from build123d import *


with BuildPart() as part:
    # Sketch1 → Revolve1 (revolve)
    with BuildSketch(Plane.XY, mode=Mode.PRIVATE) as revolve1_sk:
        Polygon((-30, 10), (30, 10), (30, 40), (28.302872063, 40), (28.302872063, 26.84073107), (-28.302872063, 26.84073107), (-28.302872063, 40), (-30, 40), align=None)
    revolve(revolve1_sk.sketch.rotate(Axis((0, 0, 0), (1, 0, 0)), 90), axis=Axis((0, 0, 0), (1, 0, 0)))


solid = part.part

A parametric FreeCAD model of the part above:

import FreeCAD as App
import Part
import Sketcher
Q = App.Units.Quantity


def add_polygon(sketch, points):
    """Adds a closed chain of lines whose ends are joined by coincident constraints."""
    first, n = sketch.GeometryCount, len(points)
    for a, b in zip(points, points[1:] + points[:1]):
        sketch.addGeometry(Part.LineSegment(App.Vector(*a, 0), App.Vector(*b, 0)), False)
    for i in range(n):
        sketch.addConstraint(Sketcher.Constraint("Coincident", first + i, 2, first + (i + 1) % n, 1))

doc = App.newDocument("Part")
body = doc.addObject("PartDesign::Body", "Body")

sketch1 = doc.addObject("Sketcher::SketchObject", "Sketch")
body.addObject(sketch1)
sketch1.AttachmentSupport = (doc.XY_Plane, [""])
sketch1.MapMode = "FlatFace"
add_polygon(sketch1, [(-30, 10), (30, 10), (30, 40), (28.3, 40), (28.3, 26.8), (-28.3, 26.8), (-28.3, 40), (-30, 40)])
sketch1.addConstraint(Sketcher.Constraint("Horizontal", 0))
sketch1.addConstraint(Sketcher.Constraint("Vertical", 1))
sketch1.addConstraint(Sketcher.Constraint("Horizontal", 2))
sketch1.addConstraint(Sketcher.Constraint("Vertical", 3))
sketch1.addConstraint(Sketcher.Constraint("Horizontal", 4))
sketch1.addConstraint(Sketcher.Constraint("Vertical", 5))
sketch1.addConstraint(Sketcher.Constraint("Horizontal", 6))
sketch1.addConstraint(Sketcher.Constraint("Vertical", 7))
sketch1.addConstraint(Sketcher.Constraint("Symmetric", 2, 2, 5, 2, -2))
sketch1.addConstraint(Sketcher.Constraint("Equal", 2, 6))
sketch1.addConstraint(Sketcher.Constraint("DistanceX", 0, 1, 0, 2, Q("60 mm")))
sketch1.addConstraint(Sketcher.Constraint("DistanceY", 1, 1, 1, 2, Q("30 mm")))
sketch1.addConstraint(Sketcher.Constraint("DistanceY", -1, 1, 0, 2, Q("10 mm")))
sketch1.addConstraint(Sketcher.Constraint("DistanceY", 3, 2, 3, 1, Q("13.159269 mm")))
sketch1.addConstraint(Sketcher.Constraint("DistanceX", 2, 2, 2, 1, Q("1.697128 mm")))
revolution = doc.addObject("PartDesign::Revolution", "Revolution")
body.addObject(revolution)
revolution.Profile = sketch1
revolution.ReferenceAxis = (sketch1, ["H_Axis"])
revolution.Angle = 360

doc.recompute()
